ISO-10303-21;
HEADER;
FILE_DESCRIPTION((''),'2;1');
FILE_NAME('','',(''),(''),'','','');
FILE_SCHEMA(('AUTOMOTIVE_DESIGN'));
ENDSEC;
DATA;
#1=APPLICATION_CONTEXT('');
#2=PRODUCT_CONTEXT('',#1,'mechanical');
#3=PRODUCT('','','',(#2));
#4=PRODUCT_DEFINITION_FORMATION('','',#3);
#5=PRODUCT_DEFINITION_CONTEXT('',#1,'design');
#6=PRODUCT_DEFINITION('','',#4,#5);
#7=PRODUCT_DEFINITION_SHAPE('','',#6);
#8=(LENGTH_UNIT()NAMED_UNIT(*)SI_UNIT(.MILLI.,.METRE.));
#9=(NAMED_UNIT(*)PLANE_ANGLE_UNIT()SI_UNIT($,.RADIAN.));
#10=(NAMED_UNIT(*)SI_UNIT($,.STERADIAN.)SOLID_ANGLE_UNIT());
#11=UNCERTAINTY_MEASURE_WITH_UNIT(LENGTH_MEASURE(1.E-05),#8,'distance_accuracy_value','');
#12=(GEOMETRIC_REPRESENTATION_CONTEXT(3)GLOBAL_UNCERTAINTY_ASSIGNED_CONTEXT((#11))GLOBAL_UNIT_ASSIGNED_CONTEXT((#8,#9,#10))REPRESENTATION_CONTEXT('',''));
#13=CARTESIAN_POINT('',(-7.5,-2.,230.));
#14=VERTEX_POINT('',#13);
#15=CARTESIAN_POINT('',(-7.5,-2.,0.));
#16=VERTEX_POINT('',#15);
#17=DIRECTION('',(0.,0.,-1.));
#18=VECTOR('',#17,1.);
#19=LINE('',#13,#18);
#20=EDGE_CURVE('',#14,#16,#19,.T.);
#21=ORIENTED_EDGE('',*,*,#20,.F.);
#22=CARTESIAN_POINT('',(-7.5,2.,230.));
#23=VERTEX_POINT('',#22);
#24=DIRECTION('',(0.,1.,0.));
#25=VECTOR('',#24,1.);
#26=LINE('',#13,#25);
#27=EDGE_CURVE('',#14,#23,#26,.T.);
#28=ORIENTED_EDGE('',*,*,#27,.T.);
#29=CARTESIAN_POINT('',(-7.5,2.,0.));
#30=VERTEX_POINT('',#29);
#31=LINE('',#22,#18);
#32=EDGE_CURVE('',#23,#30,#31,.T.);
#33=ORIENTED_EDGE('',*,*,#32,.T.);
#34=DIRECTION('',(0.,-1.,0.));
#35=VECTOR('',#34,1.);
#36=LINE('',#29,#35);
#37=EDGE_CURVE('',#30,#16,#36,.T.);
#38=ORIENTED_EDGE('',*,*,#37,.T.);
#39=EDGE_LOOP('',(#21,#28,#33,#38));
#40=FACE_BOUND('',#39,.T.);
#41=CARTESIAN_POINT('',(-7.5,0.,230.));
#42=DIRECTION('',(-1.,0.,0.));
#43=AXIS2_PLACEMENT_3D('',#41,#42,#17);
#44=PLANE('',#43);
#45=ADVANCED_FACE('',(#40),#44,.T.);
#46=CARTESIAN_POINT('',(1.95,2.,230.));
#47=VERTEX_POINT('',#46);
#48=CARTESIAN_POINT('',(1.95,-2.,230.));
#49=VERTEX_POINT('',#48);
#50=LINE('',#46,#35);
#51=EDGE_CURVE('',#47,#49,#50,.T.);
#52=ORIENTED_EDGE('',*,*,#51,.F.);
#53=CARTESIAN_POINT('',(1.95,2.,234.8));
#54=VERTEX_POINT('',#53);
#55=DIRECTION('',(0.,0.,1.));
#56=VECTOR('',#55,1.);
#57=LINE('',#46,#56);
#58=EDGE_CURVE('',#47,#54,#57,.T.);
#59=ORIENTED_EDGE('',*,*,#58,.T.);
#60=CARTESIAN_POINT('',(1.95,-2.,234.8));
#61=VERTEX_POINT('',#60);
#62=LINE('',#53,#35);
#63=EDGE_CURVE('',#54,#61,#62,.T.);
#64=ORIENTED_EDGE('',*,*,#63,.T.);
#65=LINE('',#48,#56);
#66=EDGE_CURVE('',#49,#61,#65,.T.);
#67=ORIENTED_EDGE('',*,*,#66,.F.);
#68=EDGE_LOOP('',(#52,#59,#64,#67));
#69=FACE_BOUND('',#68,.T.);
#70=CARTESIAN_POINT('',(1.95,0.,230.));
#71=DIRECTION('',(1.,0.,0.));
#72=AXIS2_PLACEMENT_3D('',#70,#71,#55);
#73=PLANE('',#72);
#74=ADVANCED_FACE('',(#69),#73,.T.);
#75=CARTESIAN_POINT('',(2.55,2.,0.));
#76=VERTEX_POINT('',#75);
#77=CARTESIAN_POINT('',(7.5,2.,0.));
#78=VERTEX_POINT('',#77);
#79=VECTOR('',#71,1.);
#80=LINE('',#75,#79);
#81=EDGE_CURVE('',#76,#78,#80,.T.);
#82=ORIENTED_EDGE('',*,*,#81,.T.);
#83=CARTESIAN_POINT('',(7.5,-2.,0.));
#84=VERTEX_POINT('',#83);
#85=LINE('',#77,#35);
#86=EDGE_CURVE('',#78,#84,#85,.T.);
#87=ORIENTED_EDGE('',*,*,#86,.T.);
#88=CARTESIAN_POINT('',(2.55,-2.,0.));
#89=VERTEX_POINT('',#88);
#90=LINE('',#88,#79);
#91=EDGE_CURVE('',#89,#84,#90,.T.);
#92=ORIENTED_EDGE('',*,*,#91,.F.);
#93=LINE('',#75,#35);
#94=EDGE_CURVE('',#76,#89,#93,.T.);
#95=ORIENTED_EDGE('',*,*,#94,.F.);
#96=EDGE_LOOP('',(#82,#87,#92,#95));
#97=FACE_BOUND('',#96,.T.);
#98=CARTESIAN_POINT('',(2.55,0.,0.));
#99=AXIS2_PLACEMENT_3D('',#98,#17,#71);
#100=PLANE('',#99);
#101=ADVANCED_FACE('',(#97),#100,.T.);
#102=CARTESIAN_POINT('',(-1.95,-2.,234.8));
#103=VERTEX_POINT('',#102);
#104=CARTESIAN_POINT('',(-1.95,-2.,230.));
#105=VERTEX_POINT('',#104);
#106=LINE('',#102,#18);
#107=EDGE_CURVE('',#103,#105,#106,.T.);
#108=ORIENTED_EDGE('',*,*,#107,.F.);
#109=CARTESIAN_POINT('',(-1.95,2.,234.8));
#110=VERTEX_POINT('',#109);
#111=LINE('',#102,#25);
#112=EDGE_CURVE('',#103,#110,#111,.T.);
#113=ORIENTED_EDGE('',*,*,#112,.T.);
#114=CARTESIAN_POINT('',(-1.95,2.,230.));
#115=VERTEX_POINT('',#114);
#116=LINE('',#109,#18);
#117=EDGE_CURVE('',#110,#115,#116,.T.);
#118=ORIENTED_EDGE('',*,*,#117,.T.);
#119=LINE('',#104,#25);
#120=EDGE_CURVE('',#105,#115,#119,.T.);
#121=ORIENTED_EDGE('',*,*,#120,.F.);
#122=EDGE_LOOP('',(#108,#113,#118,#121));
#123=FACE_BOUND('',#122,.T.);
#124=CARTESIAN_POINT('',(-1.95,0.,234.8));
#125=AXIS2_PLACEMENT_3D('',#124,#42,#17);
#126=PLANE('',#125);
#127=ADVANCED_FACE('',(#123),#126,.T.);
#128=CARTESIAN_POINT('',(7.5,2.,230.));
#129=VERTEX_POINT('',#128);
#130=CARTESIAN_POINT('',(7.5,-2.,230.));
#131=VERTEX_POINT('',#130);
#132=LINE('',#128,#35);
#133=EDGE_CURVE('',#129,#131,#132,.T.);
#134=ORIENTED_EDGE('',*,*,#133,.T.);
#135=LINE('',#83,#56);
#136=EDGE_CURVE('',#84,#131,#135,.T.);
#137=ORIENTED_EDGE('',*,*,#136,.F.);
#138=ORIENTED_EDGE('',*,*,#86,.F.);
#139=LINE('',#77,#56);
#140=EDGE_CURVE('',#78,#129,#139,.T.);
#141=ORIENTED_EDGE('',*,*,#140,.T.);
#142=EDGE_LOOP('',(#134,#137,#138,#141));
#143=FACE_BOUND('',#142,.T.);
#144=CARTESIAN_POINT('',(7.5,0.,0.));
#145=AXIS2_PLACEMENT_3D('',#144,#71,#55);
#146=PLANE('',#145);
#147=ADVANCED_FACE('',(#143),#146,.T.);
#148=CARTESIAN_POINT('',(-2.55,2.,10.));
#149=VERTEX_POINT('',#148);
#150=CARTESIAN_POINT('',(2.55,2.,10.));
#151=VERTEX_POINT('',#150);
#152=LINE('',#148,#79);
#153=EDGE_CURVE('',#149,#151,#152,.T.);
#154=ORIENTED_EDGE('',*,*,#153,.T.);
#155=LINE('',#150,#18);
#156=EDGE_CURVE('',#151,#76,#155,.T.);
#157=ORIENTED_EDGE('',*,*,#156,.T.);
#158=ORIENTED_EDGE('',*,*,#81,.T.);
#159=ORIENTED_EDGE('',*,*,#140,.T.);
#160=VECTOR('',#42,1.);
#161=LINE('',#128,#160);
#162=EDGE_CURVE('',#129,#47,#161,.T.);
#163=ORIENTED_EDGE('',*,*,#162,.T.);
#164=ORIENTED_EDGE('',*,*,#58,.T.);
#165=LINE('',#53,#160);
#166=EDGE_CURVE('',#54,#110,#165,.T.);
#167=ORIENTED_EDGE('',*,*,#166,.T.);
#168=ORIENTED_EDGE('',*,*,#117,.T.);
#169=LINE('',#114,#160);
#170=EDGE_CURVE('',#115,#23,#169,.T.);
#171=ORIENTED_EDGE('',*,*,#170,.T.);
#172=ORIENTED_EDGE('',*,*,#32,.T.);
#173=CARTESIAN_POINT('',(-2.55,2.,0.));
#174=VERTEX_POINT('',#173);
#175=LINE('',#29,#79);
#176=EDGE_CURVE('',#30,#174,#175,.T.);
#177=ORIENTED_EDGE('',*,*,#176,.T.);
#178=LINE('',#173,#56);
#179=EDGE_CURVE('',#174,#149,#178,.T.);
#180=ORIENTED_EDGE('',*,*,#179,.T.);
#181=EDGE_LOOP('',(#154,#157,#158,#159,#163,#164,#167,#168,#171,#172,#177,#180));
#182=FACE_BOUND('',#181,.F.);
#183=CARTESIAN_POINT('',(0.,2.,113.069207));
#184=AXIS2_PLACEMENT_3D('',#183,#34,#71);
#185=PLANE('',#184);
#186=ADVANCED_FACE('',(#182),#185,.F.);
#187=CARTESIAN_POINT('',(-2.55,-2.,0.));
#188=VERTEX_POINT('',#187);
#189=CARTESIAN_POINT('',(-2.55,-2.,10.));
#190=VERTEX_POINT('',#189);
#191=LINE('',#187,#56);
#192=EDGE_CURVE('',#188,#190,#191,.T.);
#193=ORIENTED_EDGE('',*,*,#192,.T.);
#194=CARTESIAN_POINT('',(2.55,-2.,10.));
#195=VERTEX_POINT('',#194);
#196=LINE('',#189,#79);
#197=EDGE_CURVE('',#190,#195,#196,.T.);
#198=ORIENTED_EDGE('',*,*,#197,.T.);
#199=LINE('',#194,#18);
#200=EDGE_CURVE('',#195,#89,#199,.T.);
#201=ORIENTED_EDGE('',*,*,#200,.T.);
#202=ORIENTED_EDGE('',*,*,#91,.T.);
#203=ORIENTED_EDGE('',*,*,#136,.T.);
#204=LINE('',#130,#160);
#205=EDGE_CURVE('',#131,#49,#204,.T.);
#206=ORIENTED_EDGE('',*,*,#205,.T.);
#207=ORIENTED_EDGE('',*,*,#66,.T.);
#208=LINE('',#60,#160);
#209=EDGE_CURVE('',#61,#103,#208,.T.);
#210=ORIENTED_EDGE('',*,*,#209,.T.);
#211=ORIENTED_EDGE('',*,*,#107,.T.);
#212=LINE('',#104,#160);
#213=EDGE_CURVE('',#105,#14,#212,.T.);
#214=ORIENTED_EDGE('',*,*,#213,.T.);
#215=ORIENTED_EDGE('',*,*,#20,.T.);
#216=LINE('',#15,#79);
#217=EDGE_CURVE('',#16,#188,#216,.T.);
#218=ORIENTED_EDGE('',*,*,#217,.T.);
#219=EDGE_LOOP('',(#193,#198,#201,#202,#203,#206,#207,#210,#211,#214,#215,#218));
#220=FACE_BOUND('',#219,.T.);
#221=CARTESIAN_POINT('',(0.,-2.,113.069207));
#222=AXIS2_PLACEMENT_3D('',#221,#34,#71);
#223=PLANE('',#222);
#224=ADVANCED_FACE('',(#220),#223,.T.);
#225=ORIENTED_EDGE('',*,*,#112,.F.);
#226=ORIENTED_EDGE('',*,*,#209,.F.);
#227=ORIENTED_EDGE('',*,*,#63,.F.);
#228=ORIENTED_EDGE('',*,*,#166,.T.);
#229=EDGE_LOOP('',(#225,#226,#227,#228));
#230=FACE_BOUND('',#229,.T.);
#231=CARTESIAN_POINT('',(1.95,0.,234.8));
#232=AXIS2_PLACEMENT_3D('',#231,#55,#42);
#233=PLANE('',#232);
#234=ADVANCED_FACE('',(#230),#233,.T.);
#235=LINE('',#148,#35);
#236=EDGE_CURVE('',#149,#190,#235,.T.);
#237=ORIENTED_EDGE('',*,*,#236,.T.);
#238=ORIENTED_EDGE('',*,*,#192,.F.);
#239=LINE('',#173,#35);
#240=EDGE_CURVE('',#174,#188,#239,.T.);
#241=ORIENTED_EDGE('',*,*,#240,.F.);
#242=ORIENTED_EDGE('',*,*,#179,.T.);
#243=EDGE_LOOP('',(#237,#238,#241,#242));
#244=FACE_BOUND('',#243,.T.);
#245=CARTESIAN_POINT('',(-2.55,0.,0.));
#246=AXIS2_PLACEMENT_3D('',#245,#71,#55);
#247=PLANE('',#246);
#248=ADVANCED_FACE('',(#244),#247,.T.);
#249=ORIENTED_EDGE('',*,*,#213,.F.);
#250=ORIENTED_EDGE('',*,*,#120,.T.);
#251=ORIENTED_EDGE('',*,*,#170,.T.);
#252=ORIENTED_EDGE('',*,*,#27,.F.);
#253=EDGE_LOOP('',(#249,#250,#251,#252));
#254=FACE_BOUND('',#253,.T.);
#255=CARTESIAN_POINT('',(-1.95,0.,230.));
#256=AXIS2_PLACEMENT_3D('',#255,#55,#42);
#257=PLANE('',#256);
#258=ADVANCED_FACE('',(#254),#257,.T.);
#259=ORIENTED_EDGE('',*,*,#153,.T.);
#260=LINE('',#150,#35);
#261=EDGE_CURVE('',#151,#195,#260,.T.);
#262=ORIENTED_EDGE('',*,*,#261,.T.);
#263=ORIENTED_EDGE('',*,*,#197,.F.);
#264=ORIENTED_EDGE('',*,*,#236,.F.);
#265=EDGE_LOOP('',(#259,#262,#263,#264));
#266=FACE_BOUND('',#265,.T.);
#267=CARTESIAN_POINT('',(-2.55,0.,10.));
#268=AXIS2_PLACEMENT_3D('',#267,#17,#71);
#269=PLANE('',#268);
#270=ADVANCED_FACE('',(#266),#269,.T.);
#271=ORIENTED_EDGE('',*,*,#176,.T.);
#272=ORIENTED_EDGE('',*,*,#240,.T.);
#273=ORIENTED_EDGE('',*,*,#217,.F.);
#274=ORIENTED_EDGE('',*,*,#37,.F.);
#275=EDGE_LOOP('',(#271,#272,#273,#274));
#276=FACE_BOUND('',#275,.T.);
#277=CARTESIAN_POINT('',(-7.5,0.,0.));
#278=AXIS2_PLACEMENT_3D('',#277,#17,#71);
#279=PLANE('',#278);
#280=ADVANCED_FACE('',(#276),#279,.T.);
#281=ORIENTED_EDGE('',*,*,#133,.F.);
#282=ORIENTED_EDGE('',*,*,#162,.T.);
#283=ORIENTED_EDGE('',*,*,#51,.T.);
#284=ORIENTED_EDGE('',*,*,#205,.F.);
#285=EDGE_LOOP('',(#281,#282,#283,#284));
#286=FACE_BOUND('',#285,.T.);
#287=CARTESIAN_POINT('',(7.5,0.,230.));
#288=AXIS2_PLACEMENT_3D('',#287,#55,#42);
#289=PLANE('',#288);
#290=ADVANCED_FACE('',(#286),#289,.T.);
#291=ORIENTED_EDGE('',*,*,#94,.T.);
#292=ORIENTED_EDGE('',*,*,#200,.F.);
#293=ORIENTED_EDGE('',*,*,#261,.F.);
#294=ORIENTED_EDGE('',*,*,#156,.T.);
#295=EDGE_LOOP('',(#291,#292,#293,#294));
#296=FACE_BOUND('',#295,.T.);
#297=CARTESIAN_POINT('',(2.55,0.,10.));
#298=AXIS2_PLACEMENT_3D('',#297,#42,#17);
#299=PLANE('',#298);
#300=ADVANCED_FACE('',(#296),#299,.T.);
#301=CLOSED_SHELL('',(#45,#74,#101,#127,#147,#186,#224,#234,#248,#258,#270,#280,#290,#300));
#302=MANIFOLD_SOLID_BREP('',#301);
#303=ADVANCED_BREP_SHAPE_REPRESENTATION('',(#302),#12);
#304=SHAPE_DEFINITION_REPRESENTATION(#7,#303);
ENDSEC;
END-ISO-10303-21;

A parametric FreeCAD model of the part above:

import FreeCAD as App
import Part
import Sketcher

V = App.Vector
Q = App.Units.Quantity


def add_polygon(sketch, points):
    """Adds a closed chain of lines whose ends are joined by coincident constraints."""
    first, n = sketch.GeometryCount, len(points)
    for a, b in zip(points, points[1:] + points[:1]):
        sketch.addGeometry(Part.LineSegment(App.Vector(*a, 0), App.Vector(*b, 0)), False)
    for i in range(n):
        sketch.addConstraint(Sketcher.Constraint("Coincident", first + i, 2, first + (i + 1) % n, 1))

doc = App.newDocument("Part")
body = doc.addObject("PartDesign::Body", "Body")

# Sketch on XZ plane
sketch1 = doc.addObject("Sketcher::SketchObject", "Sketch")
body.addObject(sketch1)
sketch1.AttachmentSupport = (doc.XZ_Plane, [""])
sketch1.MapMode = "FlatFace"
add_polygon(sketch1, [(-7.5, 230), (-7.5, 0), (-2.5, 0), (-2.5, 10), (2.5, 10), (2.5, 0), (7.5, 0), (7.5, 230), (1.9, 230), (1.9, 234.8), (-1.9, 234.8), (-1.9, 230)])  # lines 0-11
sketch1.addConstraint([
    Sketcher.Constraint("Vertical", 0),
    Sketcher.Constraint("Horizontal", 1),
    Sketcher.Constraint("Vertical", 2),
    Sketcher.Constraint("Horizontal", 3),
    Sketcher.Constraint("Vertical", 4),
    Sketcher.Constraint("Horizontal", 5),
    Sketcher.Constraint("Vertical", 6),
    Sketcher.Constraint("Horizontal", 7),
    Sketcher.Constraint("Vertical", 8),
    Sketcher.Constraint("Horizontal", 9),
    Sketcher.Constraint("Vertical", 10),
    Sketcher.Constraint("Horizontal", 11),
    Sketcher.Constraint("Symmetric", 1, 2, 4, 2, -1, 1),
    Sketcher.Constraint("Symmetric", 0, 2, 5, 2, -2),
    Sketcher.Constraint("Symmetric", 7, 2, 10, 2, -2),
    Sketcher.Constraint("DistanceY", 0, 2, 0, 1, Q("230 mm")),
    Sketcher.Constraint("DistanceY", 2, 1, 2, 2, Q("10 mm")),
    Sketcher.Constraint("DistanceX", 3, 1, 3, 2, Q("5.1 mm")),
    Sketcher.Constraint("DistanceX", 9, 2, 9, 1, Q("3.9 mm")),
    Sketcher.Constraint("DistanceY", 8, 1, 8, 2, Q("4.8 mm")),
    Sketcher.Constraint("DistanceX", 0, 2, 5, 2, Q("15 mm")),
])
pad1 = doc.addObject("PartDesign::Pad", "Pad")
body.addObject(pad1)
pad1.Profile = sketch1
pad1.Length = 4
pad1.Midplane = True

doc.recompute()
